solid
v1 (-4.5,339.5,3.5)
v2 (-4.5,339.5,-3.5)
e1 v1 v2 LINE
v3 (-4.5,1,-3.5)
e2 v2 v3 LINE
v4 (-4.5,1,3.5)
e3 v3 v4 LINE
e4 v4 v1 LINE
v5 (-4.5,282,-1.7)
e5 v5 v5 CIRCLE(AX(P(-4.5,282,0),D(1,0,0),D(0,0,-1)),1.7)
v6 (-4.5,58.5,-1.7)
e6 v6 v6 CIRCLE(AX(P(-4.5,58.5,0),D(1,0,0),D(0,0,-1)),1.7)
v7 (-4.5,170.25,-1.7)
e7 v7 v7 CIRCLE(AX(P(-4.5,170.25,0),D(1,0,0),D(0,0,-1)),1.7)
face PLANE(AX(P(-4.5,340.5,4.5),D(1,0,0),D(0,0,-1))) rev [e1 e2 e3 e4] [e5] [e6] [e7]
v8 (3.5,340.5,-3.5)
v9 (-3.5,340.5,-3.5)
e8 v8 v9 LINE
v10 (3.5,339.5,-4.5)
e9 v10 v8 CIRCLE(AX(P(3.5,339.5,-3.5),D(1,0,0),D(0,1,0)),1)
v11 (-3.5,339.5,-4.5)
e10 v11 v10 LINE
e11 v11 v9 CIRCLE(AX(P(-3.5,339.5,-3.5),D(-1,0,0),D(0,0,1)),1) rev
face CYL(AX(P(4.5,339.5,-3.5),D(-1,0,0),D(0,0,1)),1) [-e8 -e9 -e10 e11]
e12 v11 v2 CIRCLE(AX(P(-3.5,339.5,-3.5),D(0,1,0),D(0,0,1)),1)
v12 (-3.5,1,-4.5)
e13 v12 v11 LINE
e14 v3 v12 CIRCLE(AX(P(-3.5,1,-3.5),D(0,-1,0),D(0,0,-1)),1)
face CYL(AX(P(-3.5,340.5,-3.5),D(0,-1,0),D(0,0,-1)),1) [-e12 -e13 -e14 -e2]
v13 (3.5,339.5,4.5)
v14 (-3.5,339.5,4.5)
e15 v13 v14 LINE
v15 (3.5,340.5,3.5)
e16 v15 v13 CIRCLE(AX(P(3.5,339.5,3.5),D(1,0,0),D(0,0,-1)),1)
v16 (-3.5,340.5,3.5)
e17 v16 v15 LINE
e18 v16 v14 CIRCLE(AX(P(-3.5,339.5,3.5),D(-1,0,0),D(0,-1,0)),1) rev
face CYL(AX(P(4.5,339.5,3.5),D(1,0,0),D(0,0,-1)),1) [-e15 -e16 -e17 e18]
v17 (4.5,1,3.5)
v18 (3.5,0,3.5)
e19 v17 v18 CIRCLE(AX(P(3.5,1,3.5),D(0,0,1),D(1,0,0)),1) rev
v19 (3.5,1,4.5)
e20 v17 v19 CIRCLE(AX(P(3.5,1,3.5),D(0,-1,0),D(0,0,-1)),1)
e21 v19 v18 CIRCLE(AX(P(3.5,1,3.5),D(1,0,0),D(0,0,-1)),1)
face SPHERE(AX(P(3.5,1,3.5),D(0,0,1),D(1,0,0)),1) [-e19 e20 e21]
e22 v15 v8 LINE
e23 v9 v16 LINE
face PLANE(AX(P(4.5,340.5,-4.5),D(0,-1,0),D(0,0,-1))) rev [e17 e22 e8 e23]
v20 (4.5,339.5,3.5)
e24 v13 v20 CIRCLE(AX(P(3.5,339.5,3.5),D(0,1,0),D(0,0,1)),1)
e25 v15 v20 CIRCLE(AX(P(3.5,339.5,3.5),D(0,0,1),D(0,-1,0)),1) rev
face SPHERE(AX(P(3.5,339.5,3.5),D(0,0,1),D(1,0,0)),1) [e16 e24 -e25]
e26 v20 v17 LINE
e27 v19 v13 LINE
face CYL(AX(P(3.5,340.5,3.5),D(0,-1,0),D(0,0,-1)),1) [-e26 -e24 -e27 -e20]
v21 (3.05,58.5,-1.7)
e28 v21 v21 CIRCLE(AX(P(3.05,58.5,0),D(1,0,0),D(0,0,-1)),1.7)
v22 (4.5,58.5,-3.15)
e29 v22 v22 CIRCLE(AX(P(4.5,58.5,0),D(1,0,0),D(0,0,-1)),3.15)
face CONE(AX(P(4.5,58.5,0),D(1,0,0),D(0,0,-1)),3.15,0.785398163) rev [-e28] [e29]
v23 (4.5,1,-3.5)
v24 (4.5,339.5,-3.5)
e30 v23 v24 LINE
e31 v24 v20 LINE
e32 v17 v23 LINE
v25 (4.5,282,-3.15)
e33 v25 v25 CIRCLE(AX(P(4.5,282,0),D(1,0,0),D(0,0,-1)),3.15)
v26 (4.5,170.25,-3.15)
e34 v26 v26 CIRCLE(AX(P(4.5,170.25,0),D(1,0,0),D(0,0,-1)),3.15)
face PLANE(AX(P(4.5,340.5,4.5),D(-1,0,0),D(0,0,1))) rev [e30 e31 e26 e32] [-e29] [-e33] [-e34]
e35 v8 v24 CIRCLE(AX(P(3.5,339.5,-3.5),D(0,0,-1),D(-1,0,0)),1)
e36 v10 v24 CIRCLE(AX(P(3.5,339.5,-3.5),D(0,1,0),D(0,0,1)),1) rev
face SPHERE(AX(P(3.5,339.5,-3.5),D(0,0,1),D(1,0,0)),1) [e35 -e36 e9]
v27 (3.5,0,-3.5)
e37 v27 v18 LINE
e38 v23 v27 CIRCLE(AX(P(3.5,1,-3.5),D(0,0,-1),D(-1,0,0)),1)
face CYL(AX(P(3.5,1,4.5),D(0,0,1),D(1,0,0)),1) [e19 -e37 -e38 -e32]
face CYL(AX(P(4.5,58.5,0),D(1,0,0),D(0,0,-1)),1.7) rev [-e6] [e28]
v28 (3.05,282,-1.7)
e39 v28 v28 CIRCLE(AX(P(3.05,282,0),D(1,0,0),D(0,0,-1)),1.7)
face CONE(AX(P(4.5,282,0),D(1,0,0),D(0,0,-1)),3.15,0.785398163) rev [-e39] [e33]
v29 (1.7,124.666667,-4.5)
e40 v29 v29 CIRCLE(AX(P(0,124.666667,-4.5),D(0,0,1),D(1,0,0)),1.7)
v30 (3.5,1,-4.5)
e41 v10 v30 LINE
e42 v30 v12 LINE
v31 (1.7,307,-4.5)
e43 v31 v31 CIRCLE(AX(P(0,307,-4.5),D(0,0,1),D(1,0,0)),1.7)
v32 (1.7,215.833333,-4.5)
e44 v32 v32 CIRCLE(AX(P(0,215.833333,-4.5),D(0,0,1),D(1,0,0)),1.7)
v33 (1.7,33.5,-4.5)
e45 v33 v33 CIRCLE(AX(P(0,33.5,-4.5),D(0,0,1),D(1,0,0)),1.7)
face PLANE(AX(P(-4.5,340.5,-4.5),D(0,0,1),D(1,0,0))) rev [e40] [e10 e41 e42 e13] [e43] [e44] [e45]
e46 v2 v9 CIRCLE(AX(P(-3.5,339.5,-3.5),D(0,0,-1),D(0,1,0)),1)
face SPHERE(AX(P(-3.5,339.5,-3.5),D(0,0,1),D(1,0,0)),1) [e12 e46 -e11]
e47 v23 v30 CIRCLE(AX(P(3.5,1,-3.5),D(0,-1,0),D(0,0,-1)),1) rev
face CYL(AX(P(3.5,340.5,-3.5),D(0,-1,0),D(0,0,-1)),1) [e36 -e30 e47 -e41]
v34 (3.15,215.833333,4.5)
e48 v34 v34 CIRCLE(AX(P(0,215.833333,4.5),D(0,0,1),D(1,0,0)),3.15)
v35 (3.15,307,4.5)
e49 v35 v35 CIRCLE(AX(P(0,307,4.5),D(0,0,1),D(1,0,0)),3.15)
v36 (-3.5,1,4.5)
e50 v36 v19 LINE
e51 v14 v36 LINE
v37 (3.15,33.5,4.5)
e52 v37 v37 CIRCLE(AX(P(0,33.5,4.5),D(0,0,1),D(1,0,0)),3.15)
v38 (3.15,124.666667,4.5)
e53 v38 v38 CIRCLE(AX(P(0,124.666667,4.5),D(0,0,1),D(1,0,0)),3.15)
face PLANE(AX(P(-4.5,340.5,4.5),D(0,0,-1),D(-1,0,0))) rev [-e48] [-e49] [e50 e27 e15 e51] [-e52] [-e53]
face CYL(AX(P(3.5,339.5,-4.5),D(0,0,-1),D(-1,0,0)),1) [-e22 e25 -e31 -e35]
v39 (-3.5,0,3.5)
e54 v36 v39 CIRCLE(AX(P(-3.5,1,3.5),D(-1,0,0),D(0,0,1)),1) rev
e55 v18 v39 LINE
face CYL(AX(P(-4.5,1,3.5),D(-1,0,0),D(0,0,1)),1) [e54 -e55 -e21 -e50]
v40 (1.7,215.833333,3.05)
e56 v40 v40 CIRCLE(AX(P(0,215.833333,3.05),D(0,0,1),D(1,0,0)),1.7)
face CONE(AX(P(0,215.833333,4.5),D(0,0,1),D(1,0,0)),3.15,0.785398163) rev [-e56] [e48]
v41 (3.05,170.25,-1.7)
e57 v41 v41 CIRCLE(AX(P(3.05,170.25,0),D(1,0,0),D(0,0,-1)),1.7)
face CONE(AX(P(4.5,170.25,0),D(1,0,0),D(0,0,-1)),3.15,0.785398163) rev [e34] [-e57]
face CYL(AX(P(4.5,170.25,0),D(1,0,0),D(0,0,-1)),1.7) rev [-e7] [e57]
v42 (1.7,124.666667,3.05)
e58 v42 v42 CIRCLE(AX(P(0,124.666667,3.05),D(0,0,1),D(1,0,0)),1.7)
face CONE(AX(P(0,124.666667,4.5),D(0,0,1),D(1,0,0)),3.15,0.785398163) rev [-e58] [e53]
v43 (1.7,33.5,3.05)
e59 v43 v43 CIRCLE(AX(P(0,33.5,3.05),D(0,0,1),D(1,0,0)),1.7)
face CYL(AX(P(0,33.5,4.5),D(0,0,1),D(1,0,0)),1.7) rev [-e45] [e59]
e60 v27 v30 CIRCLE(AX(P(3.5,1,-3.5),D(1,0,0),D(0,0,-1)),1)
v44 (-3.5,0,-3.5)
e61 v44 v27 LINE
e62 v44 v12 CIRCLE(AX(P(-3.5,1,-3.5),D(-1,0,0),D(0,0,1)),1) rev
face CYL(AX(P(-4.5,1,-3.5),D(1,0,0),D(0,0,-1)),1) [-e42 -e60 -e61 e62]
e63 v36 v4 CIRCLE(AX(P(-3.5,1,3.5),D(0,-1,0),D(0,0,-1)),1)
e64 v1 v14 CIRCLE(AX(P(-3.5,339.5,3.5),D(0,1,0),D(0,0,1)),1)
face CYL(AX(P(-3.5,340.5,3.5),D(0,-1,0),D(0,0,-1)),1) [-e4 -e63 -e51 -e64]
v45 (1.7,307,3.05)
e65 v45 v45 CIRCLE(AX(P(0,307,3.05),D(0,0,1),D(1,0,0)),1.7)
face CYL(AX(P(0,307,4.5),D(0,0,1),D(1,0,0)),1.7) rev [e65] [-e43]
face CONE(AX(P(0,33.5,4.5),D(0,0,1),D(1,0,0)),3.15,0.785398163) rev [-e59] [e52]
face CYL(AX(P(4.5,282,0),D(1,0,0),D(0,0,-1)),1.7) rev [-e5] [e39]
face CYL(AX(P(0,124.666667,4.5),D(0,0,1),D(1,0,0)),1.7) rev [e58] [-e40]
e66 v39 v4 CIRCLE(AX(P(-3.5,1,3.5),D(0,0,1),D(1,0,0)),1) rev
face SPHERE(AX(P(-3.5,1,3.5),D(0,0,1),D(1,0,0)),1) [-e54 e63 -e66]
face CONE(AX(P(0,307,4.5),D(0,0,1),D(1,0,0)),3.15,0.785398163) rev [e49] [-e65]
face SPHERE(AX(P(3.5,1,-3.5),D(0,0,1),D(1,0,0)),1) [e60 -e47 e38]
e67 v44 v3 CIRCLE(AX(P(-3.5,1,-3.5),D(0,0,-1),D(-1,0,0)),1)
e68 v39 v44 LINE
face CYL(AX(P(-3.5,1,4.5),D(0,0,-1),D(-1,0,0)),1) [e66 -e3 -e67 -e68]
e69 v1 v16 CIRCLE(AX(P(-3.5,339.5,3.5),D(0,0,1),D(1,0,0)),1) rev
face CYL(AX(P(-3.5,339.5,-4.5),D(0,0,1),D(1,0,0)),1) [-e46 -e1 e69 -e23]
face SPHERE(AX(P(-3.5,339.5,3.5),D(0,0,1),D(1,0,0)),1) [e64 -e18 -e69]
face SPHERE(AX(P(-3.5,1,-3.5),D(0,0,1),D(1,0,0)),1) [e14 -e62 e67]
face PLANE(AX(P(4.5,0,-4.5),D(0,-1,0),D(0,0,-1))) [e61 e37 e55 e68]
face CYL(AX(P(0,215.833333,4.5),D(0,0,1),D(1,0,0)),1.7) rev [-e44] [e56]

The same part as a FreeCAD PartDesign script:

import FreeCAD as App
import Part
import Sketcher

V = App.Vector

doc = App.newDocument("Part")
body = doc.addObject("PartDesign::Body", "Body")

sketch1 = doc.addObject("Sketcher::SketchObject", "Sketch")
body.addObject(sketch1)
sketch1.AttachmentSupport = (doc.XZ_Plane, [""])
sketch1.MapMode = "FlatFace"
sketch1.addGeometry(Part.LineSegment(V(-4, -4, 0), V(-4, 4, 0)), False)
sketch1.addGeometry(Part.LineSegment(V(-4, 4, 0), V(4, 4, 0)), False)
sketch1.addGeometry(Part.LineSegment(V(4, 4, 0), V(4, -4, 0)), False)
sketch1.addGeometry(Part.LineSegment(V(4, -4, 0), V(-4, -4, 0)), False)
sketch1.addConstraint(Sketcher.Constraint("Coincident", 0, 2, 1, 1))
sketch1.addConstraint(Sketcher.Constraint("Coincident", 1, 2, 2, 1))
sketch1.addConstraint(Sketcher.Constraint("Coincident", 2, 2, 3, 1))
sketch1.addConstraint(Sketcher.Constraint("Coincident", 3, 2, 0, 1))
sketch1.addConstraint(Sketcher.Constraint("Vertical", 0))
sketch1.addConstraint(Sketcher.Constraint("Horizontal", 1))
sketch1.addConstraint(Sketcher.Constraint("Vertical", 2))
sketch1.addConstraint(Sketcher.Constraint("Horizontal", 3))
sketch1.addConstraint(Sketcher.Constraint("Symmetric", 0, 2, 2, 2, -1, 1))
sketch1.addConstraint(Sketcher.Constraint("Equal", 3, 0))
sketch1.addConstraint(Sketcher.Constraint("DistanceX", 1, 1, 1, 2, 9.0))
pad1 = doc.addObject("PartDesign::Pad", "Pad")
body.addObject(pad1)
pad1.Profile = sketch1
pad1.Length = 340.5
pad1.Reversed = True
doc.recompute()

fillet = doc.addObject("PartDesign::Fillet", "Fillet")
body.addObject(fillet)
fillet.Base = (pad1, ["Edge1"])
fillet.UseAllEdges = True
fillet.Radius = 1

sketch2 = doc.addObject("Sketcher::SketchObject", "Sketch001")
body.addObject(sketch2)
sketch2.AttachmentSupport = (doc.YZ_Plane, [""])
sketch2.MapMode = "FlatFace"
sketch2.AttachmentOffset = App.Placement(V(0, 0, 4.5), App.Rotation())
sketch2.addGeometry(Part.Circle(V(58.5, 0, 0), V(0, 0, 1), 1.7), False)
sketch2.addGeometry(Part.Circle(V(170.2, 0, 0), V(0, 0, 1), 1.7), False)
sketch2.addGeometry(Part.Circle(V(282, 0, 0), V(0, 0, 1), 1.7), False)
sketch2.addConstraint(Sketcher.Constraint("Equal", 0, 1))
sketch2.addConstraint(Sketcher.Constraint("Equal", 1, 2))
sketch2.addConstraint(Sketcher.Constraint("PointOnObject", 0, 3, -1))
sketch2.addConstraint(Sketcher.Constraint("PointOnObject", 1, 3, -1))
sketch2.addConstraint(Sketcher.Constraint("PointOnObject", 2, 3, -1))
sketch2.addConstraint(Sketcher.Constraint("Diameter", 0, 3.4))
sketch2.addConstraint(Sketcher.Constraint("DistanceX", -1, 1, 2, 3, 282.0))
sketch2.addConstraint(Sketcher.Constraint("DistanceX", -1, 1, 0, 3, 58.5))
sketch2.addConstraint(Sketcher.Constraint("DistanceX", -1, 1, 1, 3, 170.25))
doc.recompute()
hole = doc.addObject("PartDesign::Hole", "Hole")
body.addObject(hole)
hole.Profile = sketch2
hole.ThreadType = "None"
hole.Diameter = 3.4
hole.DepthType = "ThroughAll"
hole.HoleCutType = "Countersink"
hole.HoleCutDiameter = 6.3
hole.HoleCutCountersinkAngle = 90

sketch3 = doc.addObject("Sketcher::SketchObject", "Sketch002")
body.addObject(sketch3)
sketch3.AttachmentSupport = (doc.XY_Plane, [""])
sketch3.MapMode = "FlatFace"
sketch3.AttachmentOffset = App.Placement(V(0, 0, 4.5), App.Rotation())
sketch3.addGeometry(Part.Circle(V(0, 307, 0), V(0, 0, 1), 1.7), False)
sketch3.addGeometry(Part.Circle(V(0, 215.8, 0), V(0, 0, 1), 1.7), False)
sketch3.addGeometry(Part.Circle(V(0, 124.7, 0), V(0, 0, 1), 1.7), False)
sketch3.addGeometry(Part.Circle(V(0, 33.5, 0), V(0, 0, 1), 1.7), False)
sketch3.addConstraint(Sketcher.Constraint("Equal", 0, 1))
sketch3.addConstraint(Sketcher.Constraint("Equal", 1, 2))
sketch3.addConstraint(Sketcher.Constraint("Equal", 2, 3))
sketch3.addConstraint(Sketcher.Constraint("PointOnObject", 0, 3, -2))
sketch3.addConstraint(Sketcher.Constraint("PointOnObject", 1, 3, -2))
sketch3.addConstraint(Sketcher.Constraint("PointOnObject", 2, 3, -2))
sketch3.addConstraint(Sketcher.Constraint("PointOnObject", 3, 3, -2))
sketch3.addConstraint(Sketcher.Constraint("Diameter", 0, 3.4))
sketch3.addConstraint(Sketcher.Constraint("DistanceY", -1, 1, 0, 3, 307.0))
sketch3.addConstraint(Sketcher.Constraint("DistanceY", -1, 1, 3, 3, 33.5))
sketch3.addConstraint(Sketcher.Constraint("DistanceY", -1, 1, 1, 3, 215.833333))
sketch3.addConstraint(Sketcher.Constraint("DistanceY", -1, 1, 2, 3, 124.666667))
doc.recompute()
hole2 = doc.addObject("PartDesign::Hole", "Hole001")
body.addObject(hole2)
hole2.Profile = sketch3
hole2.ThreadType = "None"
hole2.Diameter = 3.4
hole2.DepthType = "ThroughAll"
hole2.HoleCutType = "Countersink"
hole2.HoleCutDiameter = 6.3
hole2.HoleCutCountersinkAngle = 90

doc.recompute()
